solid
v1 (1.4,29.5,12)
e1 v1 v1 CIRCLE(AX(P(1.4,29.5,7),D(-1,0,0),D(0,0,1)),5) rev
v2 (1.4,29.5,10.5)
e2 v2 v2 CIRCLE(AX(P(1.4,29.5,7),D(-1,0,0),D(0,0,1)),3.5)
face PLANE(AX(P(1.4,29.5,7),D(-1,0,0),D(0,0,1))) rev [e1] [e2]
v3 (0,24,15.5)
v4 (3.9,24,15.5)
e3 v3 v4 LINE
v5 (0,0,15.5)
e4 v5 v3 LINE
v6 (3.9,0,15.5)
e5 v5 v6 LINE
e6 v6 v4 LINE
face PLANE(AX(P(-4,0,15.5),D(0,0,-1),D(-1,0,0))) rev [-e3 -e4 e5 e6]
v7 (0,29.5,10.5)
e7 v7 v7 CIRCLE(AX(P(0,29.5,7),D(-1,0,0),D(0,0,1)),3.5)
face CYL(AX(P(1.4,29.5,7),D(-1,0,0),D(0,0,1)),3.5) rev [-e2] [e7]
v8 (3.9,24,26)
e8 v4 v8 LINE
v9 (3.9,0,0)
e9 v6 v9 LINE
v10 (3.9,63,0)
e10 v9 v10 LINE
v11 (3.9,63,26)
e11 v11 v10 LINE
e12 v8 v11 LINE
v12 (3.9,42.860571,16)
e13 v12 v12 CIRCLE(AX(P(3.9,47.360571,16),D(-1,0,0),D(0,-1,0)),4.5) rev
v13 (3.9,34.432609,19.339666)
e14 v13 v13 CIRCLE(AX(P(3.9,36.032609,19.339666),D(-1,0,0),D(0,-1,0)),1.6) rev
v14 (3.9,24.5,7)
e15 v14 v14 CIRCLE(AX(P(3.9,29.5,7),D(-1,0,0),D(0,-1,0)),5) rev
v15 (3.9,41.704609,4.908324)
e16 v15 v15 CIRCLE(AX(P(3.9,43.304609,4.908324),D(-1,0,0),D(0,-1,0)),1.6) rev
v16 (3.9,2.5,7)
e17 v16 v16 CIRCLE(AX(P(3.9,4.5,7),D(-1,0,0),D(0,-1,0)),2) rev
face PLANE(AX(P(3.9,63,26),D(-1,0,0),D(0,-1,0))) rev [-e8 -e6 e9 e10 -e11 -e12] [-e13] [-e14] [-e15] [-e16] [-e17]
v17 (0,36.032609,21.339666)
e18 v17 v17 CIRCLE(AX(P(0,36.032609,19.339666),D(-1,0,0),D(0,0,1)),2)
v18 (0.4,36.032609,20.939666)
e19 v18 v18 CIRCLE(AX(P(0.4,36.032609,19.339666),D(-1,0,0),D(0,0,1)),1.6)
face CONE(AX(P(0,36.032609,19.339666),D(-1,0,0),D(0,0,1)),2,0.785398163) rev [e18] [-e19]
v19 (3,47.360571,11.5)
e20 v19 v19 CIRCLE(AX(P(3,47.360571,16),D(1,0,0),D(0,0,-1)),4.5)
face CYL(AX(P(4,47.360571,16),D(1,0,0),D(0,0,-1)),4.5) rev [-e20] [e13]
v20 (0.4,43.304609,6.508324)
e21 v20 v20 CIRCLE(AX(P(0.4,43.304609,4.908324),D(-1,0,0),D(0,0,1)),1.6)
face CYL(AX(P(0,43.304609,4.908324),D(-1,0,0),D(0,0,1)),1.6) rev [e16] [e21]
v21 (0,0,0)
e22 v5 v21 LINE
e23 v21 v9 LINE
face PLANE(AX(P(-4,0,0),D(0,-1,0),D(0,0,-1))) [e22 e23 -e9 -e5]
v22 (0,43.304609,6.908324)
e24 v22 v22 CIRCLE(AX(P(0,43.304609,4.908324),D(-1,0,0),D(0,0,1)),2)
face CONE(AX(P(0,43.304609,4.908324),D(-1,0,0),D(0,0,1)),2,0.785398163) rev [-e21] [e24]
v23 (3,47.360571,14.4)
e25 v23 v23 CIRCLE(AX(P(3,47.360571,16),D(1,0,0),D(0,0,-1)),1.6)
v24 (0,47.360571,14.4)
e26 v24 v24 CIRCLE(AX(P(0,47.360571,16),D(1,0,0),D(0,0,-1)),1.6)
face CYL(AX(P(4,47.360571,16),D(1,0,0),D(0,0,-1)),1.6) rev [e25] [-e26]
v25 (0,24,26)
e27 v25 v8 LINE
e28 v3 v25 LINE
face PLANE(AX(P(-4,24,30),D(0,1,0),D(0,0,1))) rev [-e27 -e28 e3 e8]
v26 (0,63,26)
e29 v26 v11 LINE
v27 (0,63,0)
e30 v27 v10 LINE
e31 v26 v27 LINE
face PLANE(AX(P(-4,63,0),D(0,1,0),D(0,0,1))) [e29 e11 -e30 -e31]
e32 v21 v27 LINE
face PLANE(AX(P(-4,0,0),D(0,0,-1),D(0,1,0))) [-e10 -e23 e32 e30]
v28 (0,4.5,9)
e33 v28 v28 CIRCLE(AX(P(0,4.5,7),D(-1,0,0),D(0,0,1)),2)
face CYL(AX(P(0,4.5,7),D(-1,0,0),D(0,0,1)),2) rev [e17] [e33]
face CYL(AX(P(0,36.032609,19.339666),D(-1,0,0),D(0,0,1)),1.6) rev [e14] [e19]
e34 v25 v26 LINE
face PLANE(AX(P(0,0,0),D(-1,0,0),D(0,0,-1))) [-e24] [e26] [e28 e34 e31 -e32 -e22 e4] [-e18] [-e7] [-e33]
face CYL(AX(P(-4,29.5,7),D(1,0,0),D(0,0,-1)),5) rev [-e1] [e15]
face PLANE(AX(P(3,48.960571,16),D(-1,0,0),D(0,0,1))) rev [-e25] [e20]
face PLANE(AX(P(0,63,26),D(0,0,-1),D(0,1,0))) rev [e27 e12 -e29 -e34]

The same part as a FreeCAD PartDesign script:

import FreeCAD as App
import Part
import Sketcher
from FreeCAD import Vector
Q = App.Units.Quantity

doc = App.newDocument("Part")
params = doc.addObject("Spreadsheet::Sheet", "Params")
for row, (alias, value) in enumerate([
    ("sketch1_width", "63 mm"),
    ("sketch1_height", "30 mm"),
    ("pad1_length", "4 mm"),
    ("sketch2_diameter", "10 mm"),
    ("sketch3_diameter", "4 mm"),
    ("hole_diameter", "4 mm"),
    ("sketch4_width", "24 mm"),
    ("sketch4_height", "14.5 mm"),
    ("pocket3_length", "4 mm"),
    ("sketch6_diameter", "4 mm"),
    ("hole2_diameter", "4 mm"),
    ("sketch7_diameter", "3.2 mm"),
    ("hole3_diameter", "3.2 mm"),
    ("hole3_cbore_diameter", "9 mm"),
    ("hole3_cbore_depth", "1 mm"),
    ("sketch8_diameter", "3.2 mm"),
    ("hole4_diameter", "3.2 mm"),
    ("hole4_csink_diameter", "4 mm"),
    ("sketch9_width", "39 mm"),
    ("sketch9_height", "4 mm"),
    ("sketch10_height", "63 mm"),
    ("sketch10_width", "0.1 mm"),
    ("sketch11_diameter", "10 mm"),
    ("sketch11_diameter2", "7 mm"),
    ("pad2_length", "1.4 mm"),
], start=1):
    params.set(f"A{row}", alias)
    params.set(f"B{row}", "=" + value)
    params.setAlias(f"B{row}", alias)

body = doc.addObject("PartDesign::Body", "Body")

# Sketch on YZ plane
sketch1 = body.newObject("Sketcher::SketchObject", "Sketch")
sketch1.AttachmentSupport = (doc.getObject("YZ_Plane"), [""])
sketch1.MapMode = "FlatFace"
sketch1.addGeometry([
    Part.LineSegment(Vector(63, 30, 0), Vector(0, 30, 0)),
    Part.LineSegment(Vector(0, 30, 0), Vector(0, 0, 0)),
    Part.LineSegment(Vector(0, 0, 0), Vector(63, 0, 0)),
    Part.LineSegment(Vector(63, 0, 0), Vector(63, 30, 0)),
], False)
sketch1.addConstraint([
    Sketcher.Constraint("Coincident", 0, 2, 1, 1),
    Sketcher.Constraint("Coincident", 1, 2, 2, 1),
    Sketcher.Constraint("Coincident", 2, 2, 3, 1),
    Sketcher.Constraint("Coincident", 3, 2, 0, 1),
    Sketcher.Constraint("Horizontal", 0),
    Sketcher.Constraint("Vertical", 1),
    Sketcher.Constraint("Horizontal", 2),
    Sketcher.Constraint("Vertical", 3),
    Sketcher.Constraint("Coincident", 1, 2, -1, 1),
    Sketcher.Constraint("DistanceX", 0, 2, 0, 1, Q("63 mm")),
    Sketcher.Constraint("DistanceY", 1, 2, 1, 1, Q("30 mm")),
])
sketch1.setExpression("Constraints[9]", "Params.sketch1_width")
sketch1.setExpression("Constraints[10]", "Params.sketch1_height")
pad1 = body.newObject("PartDesign::Pad", "Pad")
pad1.Profile = sketch1
pad1.setExpression("Length", "Params.pad1_length")
pad1.Reversed = True

# Sketch on YZ plane
sketch2 = body.newObject("Sketcher::SketchObject", "Sketch001")
sketch2.AttachmentSupport = (doc.getObject("YZ_Plane"), [""])
sketch2.MapMode = "FlatFace"
sketch2.addGeometry(Part.Circle(Vector(30, 7, 0), Vector(0, 0, 1), 5), False)
sketch2.addConstraint([
    Sketcher.Constraint("Diameter", 0, Q("10 mm")),
    Sketcher.Constraint("DistanceY", -1, 1, 0, 3, Q("7 mm")),
    Sketcher.Constraint("DistanceX", -1, 1, 0, 3, Q("29.5 mm")),
])
sketch2.setExpression("Constraints[0]", "Params.sketch2_diameter")
pocket1 = body.newObject("PartDesign::Pocket", "Pocket")
pocket1.Profile = sketch2
pocket1.Type = "ThroughAll"

# Sketch on YZ plane
sketch3 = body.newObject("Sketcher::SketchObject", "Sketch002")
sketch3.AttachmentSupport = (doc.getObject("YZ_Plane"), [""])
sketch3.MapMode = "FlatFace"
sketch3.addGeometry(Part.Circle(Vector(4.5, 7, 0), Vector(0, 0, 1), 2), False)
sketch3.addConstraint([
    Sketcher.Constraint("Diameter", 0, Q("4 mm")),
    Sketcher.Constraint("DistanceY", -1, 1, 0, 3, Q("7 mm")),
    Sketcher.Constraint("DistanceX", -1, 1, 0, 3, Q("4.5 mm")),
])
sketch3.setExpression("Constraints[0]", "Params.sketch3_diameter")
doc.recompute()
hole = body.newObject("PartDesign::Hole", "Hole")
hole.Profile = sketch3
hole.ThreadType = "None"
hole.setExpression("Diameter", "Params.hole_diameter")
hole.DepthType = "ThroughAll"

# Sketch on YZ plane
sketch4 = body.newObject("Sketcher::SketchObject", "Sketch003")
sketch4.AttachmentSupport = (doc.getObject("YZ_Plane"), [""])
sketch4.MapMode = "FlatFace"
sketch4.addGeometry([
    Part.LineSegment(Vector(24, 30, 0), Vector(0, 30, 0)),
    Part.LineSegment(Vector(0, 30, 0), Vector(0, 16, 0)),
    Part.LineSegment(Vector(0, 16, 0), Vector(24, 16, 0)),
    Part.LineSegment(Vector(24, 16, 0), Vector(24, 30, 0)),
], False)
sketch4.addConstraint([
    Sketcher.Constraint("Coincident", 0, 2, 1, 1),
    Sketcher.Constraint("Coincident", 1, 2, 2, 1),
    Sketcher.Constraint("Coincident", 2, 2, 3, 1),
    Sketcher.Constraint("Coincident", 3, 2, 0, 1),
    Sketcher.Constraint("Horizontal", 0),
    Sketcher.Constraint("Vertical", 1),
    Sketcher.Constraint("Horizontal", 2),
    Sketcher.Constraint("Vertical", 3),
    Sketcher.Constraint("PointOnObject", 0, 2, -2),
    Sketcher.Constraint("DistanceX", 0, 2, 0, 1, Q("24 mm")),
    Sketcher.Constraint("DistanceY", 1, 2, 1, 1, Q("14.5 mm")),
    Sketcher.Constraint("DistanceY", -1, 1, 0, 2, Q("30 mm")),
])
sketch4.setExpression("Constraints[9]", "Params.sketch4_width")
sketch4.setExpression("Constraints[10]", "Params.sketch4_height")
pocket2 = body.newObject("PartDesign::Pocket", "Pocket001")
pocket2.Profile = sketch4
pocket2.Type = "ThroughAll"
doc.recompute()

mirrored = body.newObject("PartDesign::Mirrored", "Mirrored")
mirrored.Originals = [pad1, pocket1, pocket2]
mirrored.MirrorPlane = (doc.getObject("YZ_Plane"), [""])
body.Tip = mirrored

# Sketch on YZ plane
sketch5 = body.newObject("Sketcher::SketchObject", "Sketch004")
sketch5.AttachmentSupport = (doc.getObject("YZ_Plane"), [""])
sketch5.MapMode = "FlatFace"
sketch5.AttachmentOffset = App.Placement(Vector(0, 0, -4), App.Rotation())
sketch5.addGeometry([
    Part.LineSegment(Vector(63, -6, 0), Vector(-3, -6, 0)),
    Part.LineSegment(Vector(-3, -6, 0), Vector(-3, 37, 0)),
    Part.LineSegment(Vector(-3, 37, 0), Vector(63, 37, 0)),
    Part.LineSegment(Vector(63, 37, 0), Vector(63, -6, 0)),
], False)
sketch5.addConstraint([
    Sketcher.Constraint("Coincident", 0, 2, 1, 1),
    Sketcher.Constraint("Coincident", 1, 2, 2, 1),
    Sketcher.Constraint("Coincident", 2, 2, 3, 1),
    Sketcher.Constraint("Coincident", 3, 2, 0, 1),
    Sketcher.Constraint("Horizontal", 0),
    Sketcher.Constraint("Vertical", 1),
    Sketcher.Constraint("Horizontal", 2),
    Sketcher.Constraint("Vertical", 3),
    Sketcher.Constraint("DistanceX", -1, 1, 2, 2, Q("63 mm")),
    Sketcher.Constraint("DistanceX", 0, 2, 0, 1, Q("65.77982 mm")),
    Sketcher.Constraint("DistanceY", 0, 2, -1, 1, Q("5.816399 mm")),
    Sketcher.Constraint("DistanceY", 1, 1, 1, 2, Q("42.673617 mm")),
])
pocket3 = body.newObject("PartDesign::Pocket", "Pocket002")
pocket3.Profile = sketch5
pocket3.setExpression("Length", "Params.pocket3_length")
pocket3.Reversed = True

# Sketch on YZ plane
sketch6 = body.newObject("Sketcher::SketchObject", "Sketch005")
sketch6.AttachmentSupport = (doc.getObject("YZ_Plane"), [""])
sketch6.MapMode = "FlatFace"
sketch6.addGeometry(Part.Circle(Vector(4.5, 7, 0), Vector(0, 0, 1), 2), False)
sketch6.addConstraint([
    Sketcher.Constraint("Diameter", 0, Q("4 mm")),
    Sketcher.Constraint("DistanceY", -1, 1, 0, 3, Q("7 mm")),
    Sketcher.Constraint("DistanceX", -1, 1, 0, 3, Q("4.5 mm")),
])
sketch6.setExpression("Constraints[0]", "Params.sketch6_diameter")
doc.recompute()
hole2 = body.newObject("PartDesign::Hole", "Hole001")
hole2.Profile = sketch6
hole2.ThreadType = "None"
hole2.setExpression("Diameter", "Params.hole2_diameter")
hole2.DepthType = "ThroughAll"
hole2.Reversed = True

# Sketch on YZ plane
sketch7 = body.newObject("Sketcher::SketchObject", "Sketch006")
sketch7.AttachmentSupport = (doc.getObject("YZ_Plane"), [""])
sketch7.MapMode = "FlatFace"
sketch7.AttachmentOffset = App.Placement(Vector(0, 0, 4), App.Rotation())
sketch7.addGeometry(Part.Circle(Vector(47.4, 16, 0), Vector(0, 0, 1), 1.6), False)
sketch7.addConstraint([
    Sketcher.Constraint("Diameter", 0, Q("3.2 mm")),
    Sketcher.Constraint("DistanceY", -1, 1, 0, 3, Q("16 mm")),
    Sketcher.Constraint("DistanceX", -1, 1, 0, 3, Q("47.360571 mm")),
])
sketch7.setExpression("Constraints[0]", "Params.sketch7_diameter")
doc.recompute()
hole3 = body.newObject("PartDesign::Hole", "Hole002")
hole3.Profile = sketch7
hole3.ThreadType = "None"
hole3.setExpression("Diameter", "Params.hole3_diameter")
hole3.DepthType = "ThroughAll"
hole3.HoleCutType = "Counterbore"
hole3.setExpression("HoleCutDiameter", "Params.hole3_cbore_diameter")
hole3.setExpression("HoleCutDepth", "Params.hole3_cbore_depth")

# Sketch on YZ plane
sketch8 = body.newObject("Sketcher::SketchObject", "Sketch007")
sketch8.AttachmentSupport = (doc.getObject("YZ_Plane"), [""])
sketch8.MapMode = "FlatFace"
sketch8.addGeometry([
    Part.Circle(Vector(36, 19.3, 0), Vector(0, 0, 1), 1.6),
    Part.Circle(Vector(43.3, 4.9, 0), Vector(0, 0, 1), 1.6),
], False)
sketch8.addConstraint([
    Sketcher.Constraint("Equal", 0, 1),
    Sketcher.Constraint("Diameter", 0, Q("3.2 mm")),
    Sketcher.Constraint("DistanceX", 0, 3, 1, 3, Q("7.272 mm")),
    Sketcher.Constraint("DistanceX", -1, 1, 0, 3, Q("36.032609 mm")),
    Sketcher.Constraint("DistanceY", 1, 3, 0, 3, Q("14.431341 mm")),
    Sketcher.Constraint("DistanceY", -1, 1, 0, 3, Q("19.339666 mm")),
])
sketch8.setExpression("Constraints[1]", "Params.sketch8_diameter")
doc.recompute()
hole4 = body.newObject("PartDesign::Hole", "Hole003")
hole4.Profile = sketch8
hole4.ThreadType = "None"
hole4.setExpression("Diameter", "Params.hole4_diameter")
hole4.DepthType = "ThroughAll"
hole4.HoleCutType = "Countersink"
hole4.setExpression("HoleCutDiameter", "Params.hole4_csink_diameter")
hole4.HoleCutCountersinkAngle = 90
hole4.Reversed = True

# Sketch on YZ plane
sketch9 = body.newObject("Sketcher::SketchObject", "Sketch008")
sketch9.AttachmentSupport = (doc.getObject("YZ_Plane"), [""])
sketch9.MapMode = "FlatFace"
sketch9.AttachmentOffset = App.Placement(Vector(0, 0, 4), App.Rotation())
sketch9.addGeometry([
    Part.LineSegment(Vector(63, 30, 0), Vector(24, 30, 0)),
    Part.LineSegment(Vector(24, 30, 0), Vector(24, 26, 0)),
    Part.LineSegment(Vector(24, 26, 0), Vector(63, 26, 0)),
    Part.LineSegment(Vector(63, 26, 0), Vector(63, 30, 0)),
], False)
sketch9.addConstraint([
    Sketcher.Constraint("Coincident", 0, 2, 1, 1),
    Sketcher.Constraint("Coincident", 1, 2, 2, 1),
    Sketcher.Constraint("Coincident", 2, 2, 3, 1),
    Sketcher.Constraint("Coincident", 3, 2, 0, 1),
    Sketcher.Constraint("Horizontal", 0),
    Sketcher.Constraint("Vertical", 1),
    Sketcher.Constraint("Horizontal", 2),
    Sketcher.Constraint("Vertical", 3),
    Sketcher.Constraint("DistanceX", 0, 2, 0, 1, Q("39 mm")),
    Sketcher.Constraint("DistanceY", 1, 2, 1, 1, Q("4 mm")),
    Sketcher.Constraint("DistanceX", -1, 1, 0, 2, Q("24 mm")),
    Sketcher.Constraint("DistanceY", -1, 1, 0, 2, Q("30 mm")),
])
sketch9.setExpression("Constraints[8]", "Params.sketch9_width")
sketch9.setExpression("Constraints[9]", "Params.sketch9_height")
pocket4 = body.newObject("PartDesign::Pocket", "Pocket003")
pocket4.Profile = sketch9
pocket4.Type = "ThroughAll"
pocket4.Midplane = True

# Sketch on XY plane
sketch10 = body.newObject("Sketcher::SketchObject", "Sketch009")
sketch10.AttachmentSupport = (doc.getObject("XY_Plane"), [""])
sketch10.MapMode = "FlatFace"
sketch10.addGeometry([
    Part.LineSegment(Vector(4, 63, 0), Vector(4, 0, 0)),
    Part.LineSegment(Vector(4, 0, 0), Vector(3.9, 0, 0)),
    Part.LineSegment(Vector(3.9, 0, 0), Vector(3.9, 63, 0)),
    Part.LineSegment(Vector(3.9, 63, 0), Vector(4, 63, 0)),
], False)
sketch10.addConstraint([
    Sketcher.Constraint("Coincident", 0, 2, 1, 1),
    Sketcher.Constraint("Coincident", 1, 2, 2, 1),
    Sketcher.Constraint("Coincident", 2, 2, 3, 1),
    Sketcher.Constraint("Coincident", 3, 2, 0, 1),
    Sketcher.Constraint("Vertical", 0),
    Sketcher.Constraint("Horizontal", 1),
    Sketcher.Constraint("Vertical", 2),
    Sketcher.Constraint("Horizontal", 3),
    Sketcher.Constraint("PointOnObject", 0, 2, -1),
    Sketcher.Constraint("DistanceY", 0, 2, 0, 1, Q("63 mm")),
    Sketcher.Constraint("DistanceX", 1, 2, 1, 1, Q("0.1 mm")),
    Sketcher.Constraint("DistanceX", -1, 1, 0, 2, Q("4 mm")),
])
sketch10.setExpression("Constraints[9]", "Params.sketch10_height")
sketch10.setExpression("Constraints[10]", "Params.sketch10_width")
pocket5 = body.newObject("PartDesign::Pocket", "Pocket004")
pocket5.Profile = sketch10
pocket5.Type = "ThroughAll"
pocket5.Reversed = True

# Sketch on YZ plane
sketch11 = body.newObject("Sketcher::SketchObject", "Sketch010")
sketch11.AttachmentSupport = (doc.getObject("YZ_Plane"), [""])
sketch11.MapMode = "FlatFace"
sketch11.AttachmentOffset = App.Placement(Vector(0, 0, 1.4), App.Rotation())
sketch11.addGeometry([
    Part.Circle(Vector(29.5, 7, 0), Vector(0, 0, 1), 5),
    Part.Circle(Vector(29.5, 7, 0), Vector(0, 0, 1), 3.5),
], False)
sketch11.addConstraint([
    Sketcher.Constraint("Coincident", 1, 3, 0, 3),
    Sketcher.Constraint("Diameter", 0, Q("10 mm")),
    Sketcher.Constraint("Diameter", 1, Q("7 mm")),
    Sketcher.Constraint("DistanceY", -1, 1, 0, 3, Q("7 mm")),
    Sketcher.Constraint("DistanceX", -1, 1, 0, 3, Q("29.5 mm")),
])
sketch11.setExpression("Constraints[1]", "Params.sketch11_diameter")
sketch11.setExpression("Constraints[2]", "Params.sketch11_diameter2")
pad2 = body.newObject("PartDesign::Pad", "Pad001")
pad2.Profile = sketch11
pad2.setExpression("Length", "Params.pad2_length")
pad2.Reversed = True

doc.recompute()
